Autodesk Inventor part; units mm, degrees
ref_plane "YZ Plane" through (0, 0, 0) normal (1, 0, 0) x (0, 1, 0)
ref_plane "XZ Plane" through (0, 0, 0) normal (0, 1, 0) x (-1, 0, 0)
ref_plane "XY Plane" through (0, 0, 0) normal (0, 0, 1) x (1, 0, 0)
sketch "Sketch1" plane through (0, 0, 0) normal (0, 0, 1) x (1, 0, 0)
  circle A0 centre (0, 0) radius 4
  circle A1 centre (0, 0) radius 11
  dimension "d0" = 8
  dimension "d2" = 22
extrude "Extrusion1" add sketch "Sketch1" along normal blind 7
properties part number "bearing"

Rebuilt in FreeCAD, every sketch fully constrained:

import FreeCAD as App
import Part
import Sketcher
Q = App.Units.Quantity

doc = App.newDocument("Part")
body = doc.addObject("PartDesign::Body", "Body")

# Sketch on XY plane
sketch1 = doc.addObject("Sketcher::SketchObject", "Sketch")
body.addObject(sketch1)
sketch1.AttachmentSupport = (doc.XY_Plane, [""])
sketch1.MapMode = "FlatFace"
sketch1.addGeometry(Part.Circle(App.Vector(0, 0, 0), App.Vector(0, 0, 1), 11), False)
sketch1.addGeometry(Part.Circle(App.Vector(0, 0, 0), App.Vector(0, 0, 1), 4), False)
sketch1.addConstraint(Sketcher.Constraint("Coincident", 0, 3, -1, 1))
sketch1.addConstraint(Sketcher.Constraint("Coincident", 1, 3, -1, 1))
sketch1.addConstraint(Sketcher.Constraint("Diameter", 0, Q("22 mm")))
sketch1.addConstraint(Sketcher.Constraint("Diameter", 1, Q("8 mm")))
pad1 = doc.addObject("PartDesign::Pad", "Pad")
body.addObject(pad1)
pad1.Profile = sketch1
pad1.Length = 7

doc.recompute()
